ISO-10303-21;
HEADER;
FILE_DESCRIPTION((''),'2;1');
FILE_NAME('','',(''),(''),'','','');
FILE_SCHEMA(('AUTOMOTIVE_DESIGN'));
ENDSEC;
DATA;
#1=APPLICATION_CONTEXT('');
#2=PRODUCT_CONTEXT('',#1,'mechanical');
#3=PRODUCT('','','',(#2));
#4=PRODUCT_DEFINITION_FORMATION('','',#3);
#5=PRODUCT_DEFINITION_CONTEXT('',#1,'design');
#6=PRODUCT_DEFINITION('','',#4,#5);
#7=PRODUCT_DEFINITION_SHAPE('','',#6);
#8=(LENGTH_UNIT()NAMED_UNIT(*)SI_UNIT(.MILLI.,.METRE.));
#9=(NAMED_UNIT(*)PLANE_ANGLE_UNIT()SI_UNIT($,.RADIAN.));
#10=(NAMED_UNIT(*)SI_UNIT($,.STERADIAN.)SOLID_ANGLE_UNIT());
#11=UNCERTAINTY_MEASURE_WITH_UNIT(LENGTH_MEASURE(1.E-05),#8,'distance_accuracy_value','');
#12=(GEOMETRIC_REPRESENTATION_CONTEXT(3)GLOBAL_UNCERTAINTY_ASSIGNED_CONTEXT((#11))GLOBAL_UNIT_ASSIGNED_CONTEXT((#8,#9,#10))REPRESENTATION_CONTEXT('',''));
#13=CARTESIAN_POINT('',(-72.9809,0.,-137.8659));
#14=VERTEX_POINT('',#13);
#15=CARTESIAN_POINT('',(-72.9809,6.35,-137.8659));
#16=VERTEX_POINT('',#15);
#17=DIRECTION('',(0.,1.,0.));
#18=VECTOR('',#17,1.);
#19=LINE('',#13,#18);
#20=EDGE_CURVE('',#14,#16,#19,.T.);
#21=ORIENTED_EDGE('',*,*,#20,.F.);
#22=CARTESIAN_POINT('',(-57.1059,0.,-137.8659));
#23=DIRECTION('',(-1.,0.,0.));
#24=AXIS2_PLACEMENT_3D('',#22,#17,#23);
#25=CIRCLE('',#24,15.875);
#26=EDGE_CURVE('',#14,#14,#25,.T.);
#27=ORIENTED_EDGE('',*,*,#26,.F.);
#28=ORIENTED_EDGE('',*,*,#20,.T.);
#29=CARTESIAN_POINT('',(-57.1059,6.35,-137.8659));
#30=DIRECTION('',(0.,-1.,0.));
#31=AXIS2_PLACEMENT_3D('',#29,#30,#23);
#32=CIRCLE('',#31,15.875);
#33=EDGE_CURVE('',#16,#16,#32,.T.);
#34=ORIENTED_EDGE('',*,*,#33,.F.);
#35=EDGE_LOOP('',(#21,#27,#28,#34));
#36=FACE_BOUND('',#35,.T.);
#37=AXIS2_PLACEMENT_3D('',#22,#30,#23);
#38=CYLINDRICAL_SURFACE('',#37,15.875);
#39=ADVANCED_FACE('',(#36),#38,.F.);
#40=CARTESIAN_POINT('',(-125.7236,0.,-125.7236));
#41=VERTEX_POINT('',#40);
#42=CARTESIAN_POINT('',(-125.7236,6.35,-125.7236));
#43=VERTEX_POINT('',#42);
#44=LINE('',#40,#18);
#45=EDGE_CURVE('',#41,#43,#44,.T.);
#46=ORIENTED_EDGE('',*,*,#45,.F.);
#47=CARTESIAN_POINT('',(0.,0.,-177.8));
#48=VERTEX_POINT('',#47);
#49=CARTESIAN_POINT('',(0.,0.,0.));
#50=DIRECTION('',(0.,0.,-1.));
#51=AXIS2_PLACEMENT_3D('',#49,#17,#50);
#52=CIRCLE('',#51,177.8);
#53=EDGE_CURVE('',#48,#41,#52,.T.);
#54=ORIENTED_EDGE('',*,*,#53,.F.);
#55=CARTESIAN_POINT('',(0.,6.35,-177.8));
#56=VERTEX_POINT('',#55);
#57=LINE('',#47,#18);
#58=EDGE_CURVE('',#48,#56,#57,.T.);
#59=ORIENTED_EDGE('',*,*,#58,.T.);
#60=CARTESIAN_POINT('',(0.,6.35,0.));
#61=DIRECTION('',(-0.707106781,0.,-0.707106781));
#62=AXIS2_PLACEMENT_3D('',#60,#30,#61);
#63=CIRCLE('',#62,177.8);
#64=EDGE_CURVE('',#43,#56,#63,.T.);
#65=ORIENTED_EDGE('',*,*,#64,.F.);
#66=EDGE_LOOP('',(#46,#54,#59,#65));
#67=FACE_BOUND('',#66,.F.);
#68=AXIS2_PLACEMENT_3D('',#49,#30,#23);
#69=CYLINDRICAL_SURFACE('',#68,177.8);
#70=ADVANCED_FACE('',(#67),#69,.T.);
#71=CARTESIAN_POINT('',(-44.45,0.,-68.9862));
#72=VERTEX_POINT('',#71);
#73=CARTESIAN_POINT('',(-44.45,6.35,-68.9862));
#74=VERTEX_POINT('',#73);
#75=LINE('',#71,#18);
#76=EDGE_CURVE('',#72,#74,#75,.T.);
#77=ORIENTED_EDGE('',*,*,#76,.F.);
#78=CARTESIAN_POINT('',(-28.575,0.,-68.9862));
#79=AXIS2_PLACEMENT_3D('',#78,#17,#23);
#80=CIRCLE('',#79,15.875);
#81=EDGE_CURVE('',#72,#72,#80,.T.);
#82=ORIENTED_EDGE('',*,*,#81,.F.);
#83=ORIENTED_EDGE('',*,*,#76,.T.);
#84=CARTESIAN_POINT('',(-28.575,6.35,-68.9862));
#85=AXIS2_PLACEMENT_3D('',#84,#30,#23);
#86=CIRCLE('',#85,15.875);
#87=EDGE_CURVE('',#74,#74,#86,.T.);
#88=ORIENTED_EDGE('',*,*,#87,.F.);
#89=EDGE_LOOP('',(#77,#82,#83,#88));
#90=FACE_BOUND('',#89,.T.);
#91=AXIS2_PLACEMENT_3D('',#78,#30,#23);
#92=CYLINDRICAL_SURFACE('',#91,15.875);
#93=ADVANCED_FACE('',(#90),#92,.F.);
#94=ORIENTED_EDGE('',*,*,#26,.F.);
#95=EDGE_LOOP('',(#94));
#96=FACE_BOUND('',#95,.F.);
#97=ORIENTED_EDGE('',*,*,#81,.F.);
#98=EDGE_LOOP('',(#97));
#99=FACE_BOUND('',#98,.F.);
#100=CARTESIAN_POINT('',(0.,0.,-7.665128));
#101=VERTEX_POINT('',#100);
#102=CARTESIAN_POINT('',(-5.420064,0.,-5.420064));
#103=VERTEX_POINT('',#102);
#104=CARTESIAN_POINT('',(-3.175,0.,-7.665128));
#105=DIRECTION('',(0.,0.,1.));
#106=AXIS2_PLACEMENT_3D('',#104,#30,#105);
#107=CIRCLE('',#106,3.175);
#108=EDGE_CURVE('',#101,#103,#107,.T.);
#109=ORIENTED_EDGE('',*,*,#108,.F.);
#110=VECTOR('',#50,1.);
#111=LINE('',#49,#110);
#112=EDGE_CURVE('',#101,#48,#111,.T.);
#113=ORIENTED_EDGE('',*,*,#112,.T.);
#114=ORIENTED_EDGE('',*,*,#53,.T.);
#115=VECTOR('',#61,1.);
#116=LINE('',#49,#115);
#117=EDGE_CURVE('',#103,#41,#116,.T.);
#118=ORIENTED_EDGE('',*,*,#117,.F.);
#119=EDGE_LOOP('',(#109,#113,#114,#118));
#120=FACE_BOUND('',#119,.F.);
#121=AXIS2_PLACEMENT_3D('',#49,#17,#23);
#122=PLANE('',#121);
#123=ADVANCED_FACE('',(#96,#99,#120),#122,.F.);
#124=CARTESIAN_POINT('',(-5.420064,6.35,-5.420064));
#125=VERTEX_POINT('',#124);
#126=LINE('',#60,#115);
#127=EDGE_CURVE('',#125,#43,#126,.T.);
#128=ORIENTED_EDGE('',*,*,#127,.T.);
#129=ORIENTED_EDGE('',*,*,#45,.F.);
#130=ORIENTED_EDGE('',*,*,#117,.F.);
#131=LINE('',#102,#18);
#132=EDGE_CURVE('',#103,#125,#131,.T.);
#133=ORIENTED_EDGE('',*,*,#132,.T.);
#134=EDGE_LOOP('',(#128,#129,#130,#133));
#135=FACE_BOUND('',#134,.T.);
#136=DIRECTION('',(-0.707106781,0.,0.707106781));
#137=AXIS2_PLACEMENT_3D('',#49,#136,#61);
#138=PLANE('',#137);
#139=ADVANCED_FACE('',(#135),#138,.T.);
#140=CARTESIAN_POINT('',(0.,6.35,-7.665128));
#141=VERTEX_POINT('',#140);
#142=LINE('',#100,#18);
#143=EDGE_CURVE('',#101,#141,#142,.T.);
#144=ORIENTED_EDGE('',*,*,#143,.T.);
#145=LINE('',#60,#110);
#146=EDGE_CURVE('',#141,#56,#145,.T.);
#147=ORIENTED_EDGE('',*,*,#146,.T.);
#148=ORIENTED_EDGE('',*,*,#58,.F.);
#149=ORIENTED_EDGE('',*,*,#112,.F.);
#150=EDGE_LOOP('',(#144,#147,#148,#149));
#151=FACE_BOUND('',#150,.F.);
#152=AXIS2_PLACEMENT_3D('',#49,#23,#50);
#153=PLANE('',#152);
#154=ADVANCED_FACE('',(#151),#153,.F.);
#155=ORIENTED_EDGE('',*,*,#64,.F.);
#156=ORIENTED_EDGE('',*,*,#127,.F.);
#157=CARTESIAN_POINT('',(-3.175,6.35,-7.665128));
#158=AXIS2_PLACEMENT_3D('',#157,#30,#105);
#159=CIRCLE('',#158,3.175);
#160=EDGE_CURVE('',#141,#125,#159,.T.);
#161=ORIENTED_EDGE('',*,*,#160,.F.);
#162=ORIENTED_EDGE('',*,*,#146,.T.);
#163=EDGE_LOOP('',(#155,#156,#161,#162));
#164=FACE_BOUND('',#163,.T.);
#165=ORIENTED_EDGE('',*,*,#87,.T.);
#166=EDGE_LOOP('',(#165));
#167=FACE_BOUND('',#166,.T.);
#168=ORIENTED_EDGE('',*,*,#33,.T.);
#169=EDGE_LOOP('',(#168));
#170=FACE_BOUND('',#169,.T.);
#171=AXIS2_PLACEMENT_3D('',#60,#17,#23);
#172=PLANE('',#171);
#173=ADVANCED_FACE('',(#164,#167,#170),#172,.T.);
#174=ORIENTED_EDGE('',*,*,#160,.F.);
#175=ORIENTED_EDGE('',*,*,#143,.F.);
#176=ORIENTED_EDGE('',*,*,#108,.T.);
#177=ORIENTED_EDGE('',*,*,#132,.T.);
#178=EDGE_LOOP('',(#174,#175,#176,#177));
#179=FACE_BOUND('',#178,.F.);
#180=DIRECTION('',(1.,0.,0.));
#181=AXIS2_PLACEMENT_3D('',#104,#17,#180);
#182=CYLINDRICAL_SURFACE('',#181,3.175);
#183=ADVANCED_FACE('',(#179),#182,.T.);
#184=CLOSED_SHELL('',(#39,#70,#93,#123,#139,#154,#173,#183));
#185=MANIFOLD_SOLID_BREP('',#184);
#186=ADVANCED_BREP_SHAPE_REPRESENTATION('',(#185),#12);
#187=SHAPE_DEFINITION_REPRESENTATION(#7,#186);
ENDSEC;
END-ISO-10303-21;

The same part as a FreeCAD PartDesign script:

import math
import FreeCAD as App
import Part
import Sketcher
from FreeCAD import Vector
Q = App.Units.Quantity


def edges_at(feature, points):
    """Names of the edges that pass closest to the given points."""
    edges = feature.Shape.Edges
    near = lambda p: min(range(len(edges)), key=lambda i: edges[i].distToShape(Part.Vertex(*p))[0])
    return sorted({f"Edge{near(p) + 1}" for p in points})

doc = App.newDocument("Part")
body = doc.addObject("PartDesign::Body", "Body")

# Sketch on XZ plane
sketch1 = doc.addObject("Sketcher::SketchObject", "Sketch")
body.addObject(sketch1)
sketch1.AttachmentSupport = (doc.XZ_Plane, [""])
sketch1.MapMode = "FlatFace"
sketch1.addGeometry([
    Part.LineSegment(Vector(0, 0, 0), Vector(0, -177.8, 0)),  # 0
    Part.ArcOfCircle(Part.Circle(Vector(0, 0, 0), Vector(0, 0, 1), 177.8), math.radians(-135), math.radians(-90)),  # 1
    Part.LineSegment(Vector(-125.7236, -125.7236, 0), Vector(0, 0, 0)),  # 2
    Part.Circle(Vector(-28.575, -68.9862, 0), Vector(0, 0, 1), 15.875),  # 3
    Part.Circle(Vector(-57.1059, -137.8659, 0), Vector(0, 0, 1), 15.875),  # 4
], False)
sketch1.addConstraint([
    Sketcher.Constraint("Coincident", 0, 2, 1, 2),
    Sketcher.Constraint("Coincident", 1, 1, 2, 1),
    Sketcher.Constraint("Coincident", 2, 2, 0, 1),
    Sketcher.Constraint("Vertical", 0),
    Sketcher.Constraint("Coincident", 1, 3, -1, 1),
    Sketcher.Constraint("Coincident", 2, 2, -1, 1),
    Sketcher.Constraint("Equal", 3, 4),
    Sketcher.Constraint("Radius", 1, Q("7 in")),
    Sketcher.Constraint("Diameter", 3, Q("1.25 in")),
    Sketcher.Constraint("Angle", 2, Q("45 deg")),
    Sketcher.Constraint("DistanceX", 3, 3, -1, 1, Q("1.125 in")),
    Sketcher.Constraint("DistanceY", 3, 3, -1, 1, Q("2.716 in")),
    Sketcher.Constraint("DistanceY", 4, 3, -1, 1, Q("5.4278 in")),
    Sketcher.Constraint("DistanceX", 4, 3, -1, 1, 57.106),
])
pad1 = doc.addObject("PartDesign::Pad", "Pad")
body.addObject(pad1)
pad1.Profile = sketch1
pad1.Length = Q("0.25 in")
pad1.Reversed = True
doc.recompute()

fillet = doc.addObject("PartDesign::Fillet", "Fillet")
body.addObject(fillet)
fillet.Base = (pad1, edges_at(pad1, [(0, 3.175, 0)]))
fillet.Radius = Q("0.125 in")

doc.recompute()
